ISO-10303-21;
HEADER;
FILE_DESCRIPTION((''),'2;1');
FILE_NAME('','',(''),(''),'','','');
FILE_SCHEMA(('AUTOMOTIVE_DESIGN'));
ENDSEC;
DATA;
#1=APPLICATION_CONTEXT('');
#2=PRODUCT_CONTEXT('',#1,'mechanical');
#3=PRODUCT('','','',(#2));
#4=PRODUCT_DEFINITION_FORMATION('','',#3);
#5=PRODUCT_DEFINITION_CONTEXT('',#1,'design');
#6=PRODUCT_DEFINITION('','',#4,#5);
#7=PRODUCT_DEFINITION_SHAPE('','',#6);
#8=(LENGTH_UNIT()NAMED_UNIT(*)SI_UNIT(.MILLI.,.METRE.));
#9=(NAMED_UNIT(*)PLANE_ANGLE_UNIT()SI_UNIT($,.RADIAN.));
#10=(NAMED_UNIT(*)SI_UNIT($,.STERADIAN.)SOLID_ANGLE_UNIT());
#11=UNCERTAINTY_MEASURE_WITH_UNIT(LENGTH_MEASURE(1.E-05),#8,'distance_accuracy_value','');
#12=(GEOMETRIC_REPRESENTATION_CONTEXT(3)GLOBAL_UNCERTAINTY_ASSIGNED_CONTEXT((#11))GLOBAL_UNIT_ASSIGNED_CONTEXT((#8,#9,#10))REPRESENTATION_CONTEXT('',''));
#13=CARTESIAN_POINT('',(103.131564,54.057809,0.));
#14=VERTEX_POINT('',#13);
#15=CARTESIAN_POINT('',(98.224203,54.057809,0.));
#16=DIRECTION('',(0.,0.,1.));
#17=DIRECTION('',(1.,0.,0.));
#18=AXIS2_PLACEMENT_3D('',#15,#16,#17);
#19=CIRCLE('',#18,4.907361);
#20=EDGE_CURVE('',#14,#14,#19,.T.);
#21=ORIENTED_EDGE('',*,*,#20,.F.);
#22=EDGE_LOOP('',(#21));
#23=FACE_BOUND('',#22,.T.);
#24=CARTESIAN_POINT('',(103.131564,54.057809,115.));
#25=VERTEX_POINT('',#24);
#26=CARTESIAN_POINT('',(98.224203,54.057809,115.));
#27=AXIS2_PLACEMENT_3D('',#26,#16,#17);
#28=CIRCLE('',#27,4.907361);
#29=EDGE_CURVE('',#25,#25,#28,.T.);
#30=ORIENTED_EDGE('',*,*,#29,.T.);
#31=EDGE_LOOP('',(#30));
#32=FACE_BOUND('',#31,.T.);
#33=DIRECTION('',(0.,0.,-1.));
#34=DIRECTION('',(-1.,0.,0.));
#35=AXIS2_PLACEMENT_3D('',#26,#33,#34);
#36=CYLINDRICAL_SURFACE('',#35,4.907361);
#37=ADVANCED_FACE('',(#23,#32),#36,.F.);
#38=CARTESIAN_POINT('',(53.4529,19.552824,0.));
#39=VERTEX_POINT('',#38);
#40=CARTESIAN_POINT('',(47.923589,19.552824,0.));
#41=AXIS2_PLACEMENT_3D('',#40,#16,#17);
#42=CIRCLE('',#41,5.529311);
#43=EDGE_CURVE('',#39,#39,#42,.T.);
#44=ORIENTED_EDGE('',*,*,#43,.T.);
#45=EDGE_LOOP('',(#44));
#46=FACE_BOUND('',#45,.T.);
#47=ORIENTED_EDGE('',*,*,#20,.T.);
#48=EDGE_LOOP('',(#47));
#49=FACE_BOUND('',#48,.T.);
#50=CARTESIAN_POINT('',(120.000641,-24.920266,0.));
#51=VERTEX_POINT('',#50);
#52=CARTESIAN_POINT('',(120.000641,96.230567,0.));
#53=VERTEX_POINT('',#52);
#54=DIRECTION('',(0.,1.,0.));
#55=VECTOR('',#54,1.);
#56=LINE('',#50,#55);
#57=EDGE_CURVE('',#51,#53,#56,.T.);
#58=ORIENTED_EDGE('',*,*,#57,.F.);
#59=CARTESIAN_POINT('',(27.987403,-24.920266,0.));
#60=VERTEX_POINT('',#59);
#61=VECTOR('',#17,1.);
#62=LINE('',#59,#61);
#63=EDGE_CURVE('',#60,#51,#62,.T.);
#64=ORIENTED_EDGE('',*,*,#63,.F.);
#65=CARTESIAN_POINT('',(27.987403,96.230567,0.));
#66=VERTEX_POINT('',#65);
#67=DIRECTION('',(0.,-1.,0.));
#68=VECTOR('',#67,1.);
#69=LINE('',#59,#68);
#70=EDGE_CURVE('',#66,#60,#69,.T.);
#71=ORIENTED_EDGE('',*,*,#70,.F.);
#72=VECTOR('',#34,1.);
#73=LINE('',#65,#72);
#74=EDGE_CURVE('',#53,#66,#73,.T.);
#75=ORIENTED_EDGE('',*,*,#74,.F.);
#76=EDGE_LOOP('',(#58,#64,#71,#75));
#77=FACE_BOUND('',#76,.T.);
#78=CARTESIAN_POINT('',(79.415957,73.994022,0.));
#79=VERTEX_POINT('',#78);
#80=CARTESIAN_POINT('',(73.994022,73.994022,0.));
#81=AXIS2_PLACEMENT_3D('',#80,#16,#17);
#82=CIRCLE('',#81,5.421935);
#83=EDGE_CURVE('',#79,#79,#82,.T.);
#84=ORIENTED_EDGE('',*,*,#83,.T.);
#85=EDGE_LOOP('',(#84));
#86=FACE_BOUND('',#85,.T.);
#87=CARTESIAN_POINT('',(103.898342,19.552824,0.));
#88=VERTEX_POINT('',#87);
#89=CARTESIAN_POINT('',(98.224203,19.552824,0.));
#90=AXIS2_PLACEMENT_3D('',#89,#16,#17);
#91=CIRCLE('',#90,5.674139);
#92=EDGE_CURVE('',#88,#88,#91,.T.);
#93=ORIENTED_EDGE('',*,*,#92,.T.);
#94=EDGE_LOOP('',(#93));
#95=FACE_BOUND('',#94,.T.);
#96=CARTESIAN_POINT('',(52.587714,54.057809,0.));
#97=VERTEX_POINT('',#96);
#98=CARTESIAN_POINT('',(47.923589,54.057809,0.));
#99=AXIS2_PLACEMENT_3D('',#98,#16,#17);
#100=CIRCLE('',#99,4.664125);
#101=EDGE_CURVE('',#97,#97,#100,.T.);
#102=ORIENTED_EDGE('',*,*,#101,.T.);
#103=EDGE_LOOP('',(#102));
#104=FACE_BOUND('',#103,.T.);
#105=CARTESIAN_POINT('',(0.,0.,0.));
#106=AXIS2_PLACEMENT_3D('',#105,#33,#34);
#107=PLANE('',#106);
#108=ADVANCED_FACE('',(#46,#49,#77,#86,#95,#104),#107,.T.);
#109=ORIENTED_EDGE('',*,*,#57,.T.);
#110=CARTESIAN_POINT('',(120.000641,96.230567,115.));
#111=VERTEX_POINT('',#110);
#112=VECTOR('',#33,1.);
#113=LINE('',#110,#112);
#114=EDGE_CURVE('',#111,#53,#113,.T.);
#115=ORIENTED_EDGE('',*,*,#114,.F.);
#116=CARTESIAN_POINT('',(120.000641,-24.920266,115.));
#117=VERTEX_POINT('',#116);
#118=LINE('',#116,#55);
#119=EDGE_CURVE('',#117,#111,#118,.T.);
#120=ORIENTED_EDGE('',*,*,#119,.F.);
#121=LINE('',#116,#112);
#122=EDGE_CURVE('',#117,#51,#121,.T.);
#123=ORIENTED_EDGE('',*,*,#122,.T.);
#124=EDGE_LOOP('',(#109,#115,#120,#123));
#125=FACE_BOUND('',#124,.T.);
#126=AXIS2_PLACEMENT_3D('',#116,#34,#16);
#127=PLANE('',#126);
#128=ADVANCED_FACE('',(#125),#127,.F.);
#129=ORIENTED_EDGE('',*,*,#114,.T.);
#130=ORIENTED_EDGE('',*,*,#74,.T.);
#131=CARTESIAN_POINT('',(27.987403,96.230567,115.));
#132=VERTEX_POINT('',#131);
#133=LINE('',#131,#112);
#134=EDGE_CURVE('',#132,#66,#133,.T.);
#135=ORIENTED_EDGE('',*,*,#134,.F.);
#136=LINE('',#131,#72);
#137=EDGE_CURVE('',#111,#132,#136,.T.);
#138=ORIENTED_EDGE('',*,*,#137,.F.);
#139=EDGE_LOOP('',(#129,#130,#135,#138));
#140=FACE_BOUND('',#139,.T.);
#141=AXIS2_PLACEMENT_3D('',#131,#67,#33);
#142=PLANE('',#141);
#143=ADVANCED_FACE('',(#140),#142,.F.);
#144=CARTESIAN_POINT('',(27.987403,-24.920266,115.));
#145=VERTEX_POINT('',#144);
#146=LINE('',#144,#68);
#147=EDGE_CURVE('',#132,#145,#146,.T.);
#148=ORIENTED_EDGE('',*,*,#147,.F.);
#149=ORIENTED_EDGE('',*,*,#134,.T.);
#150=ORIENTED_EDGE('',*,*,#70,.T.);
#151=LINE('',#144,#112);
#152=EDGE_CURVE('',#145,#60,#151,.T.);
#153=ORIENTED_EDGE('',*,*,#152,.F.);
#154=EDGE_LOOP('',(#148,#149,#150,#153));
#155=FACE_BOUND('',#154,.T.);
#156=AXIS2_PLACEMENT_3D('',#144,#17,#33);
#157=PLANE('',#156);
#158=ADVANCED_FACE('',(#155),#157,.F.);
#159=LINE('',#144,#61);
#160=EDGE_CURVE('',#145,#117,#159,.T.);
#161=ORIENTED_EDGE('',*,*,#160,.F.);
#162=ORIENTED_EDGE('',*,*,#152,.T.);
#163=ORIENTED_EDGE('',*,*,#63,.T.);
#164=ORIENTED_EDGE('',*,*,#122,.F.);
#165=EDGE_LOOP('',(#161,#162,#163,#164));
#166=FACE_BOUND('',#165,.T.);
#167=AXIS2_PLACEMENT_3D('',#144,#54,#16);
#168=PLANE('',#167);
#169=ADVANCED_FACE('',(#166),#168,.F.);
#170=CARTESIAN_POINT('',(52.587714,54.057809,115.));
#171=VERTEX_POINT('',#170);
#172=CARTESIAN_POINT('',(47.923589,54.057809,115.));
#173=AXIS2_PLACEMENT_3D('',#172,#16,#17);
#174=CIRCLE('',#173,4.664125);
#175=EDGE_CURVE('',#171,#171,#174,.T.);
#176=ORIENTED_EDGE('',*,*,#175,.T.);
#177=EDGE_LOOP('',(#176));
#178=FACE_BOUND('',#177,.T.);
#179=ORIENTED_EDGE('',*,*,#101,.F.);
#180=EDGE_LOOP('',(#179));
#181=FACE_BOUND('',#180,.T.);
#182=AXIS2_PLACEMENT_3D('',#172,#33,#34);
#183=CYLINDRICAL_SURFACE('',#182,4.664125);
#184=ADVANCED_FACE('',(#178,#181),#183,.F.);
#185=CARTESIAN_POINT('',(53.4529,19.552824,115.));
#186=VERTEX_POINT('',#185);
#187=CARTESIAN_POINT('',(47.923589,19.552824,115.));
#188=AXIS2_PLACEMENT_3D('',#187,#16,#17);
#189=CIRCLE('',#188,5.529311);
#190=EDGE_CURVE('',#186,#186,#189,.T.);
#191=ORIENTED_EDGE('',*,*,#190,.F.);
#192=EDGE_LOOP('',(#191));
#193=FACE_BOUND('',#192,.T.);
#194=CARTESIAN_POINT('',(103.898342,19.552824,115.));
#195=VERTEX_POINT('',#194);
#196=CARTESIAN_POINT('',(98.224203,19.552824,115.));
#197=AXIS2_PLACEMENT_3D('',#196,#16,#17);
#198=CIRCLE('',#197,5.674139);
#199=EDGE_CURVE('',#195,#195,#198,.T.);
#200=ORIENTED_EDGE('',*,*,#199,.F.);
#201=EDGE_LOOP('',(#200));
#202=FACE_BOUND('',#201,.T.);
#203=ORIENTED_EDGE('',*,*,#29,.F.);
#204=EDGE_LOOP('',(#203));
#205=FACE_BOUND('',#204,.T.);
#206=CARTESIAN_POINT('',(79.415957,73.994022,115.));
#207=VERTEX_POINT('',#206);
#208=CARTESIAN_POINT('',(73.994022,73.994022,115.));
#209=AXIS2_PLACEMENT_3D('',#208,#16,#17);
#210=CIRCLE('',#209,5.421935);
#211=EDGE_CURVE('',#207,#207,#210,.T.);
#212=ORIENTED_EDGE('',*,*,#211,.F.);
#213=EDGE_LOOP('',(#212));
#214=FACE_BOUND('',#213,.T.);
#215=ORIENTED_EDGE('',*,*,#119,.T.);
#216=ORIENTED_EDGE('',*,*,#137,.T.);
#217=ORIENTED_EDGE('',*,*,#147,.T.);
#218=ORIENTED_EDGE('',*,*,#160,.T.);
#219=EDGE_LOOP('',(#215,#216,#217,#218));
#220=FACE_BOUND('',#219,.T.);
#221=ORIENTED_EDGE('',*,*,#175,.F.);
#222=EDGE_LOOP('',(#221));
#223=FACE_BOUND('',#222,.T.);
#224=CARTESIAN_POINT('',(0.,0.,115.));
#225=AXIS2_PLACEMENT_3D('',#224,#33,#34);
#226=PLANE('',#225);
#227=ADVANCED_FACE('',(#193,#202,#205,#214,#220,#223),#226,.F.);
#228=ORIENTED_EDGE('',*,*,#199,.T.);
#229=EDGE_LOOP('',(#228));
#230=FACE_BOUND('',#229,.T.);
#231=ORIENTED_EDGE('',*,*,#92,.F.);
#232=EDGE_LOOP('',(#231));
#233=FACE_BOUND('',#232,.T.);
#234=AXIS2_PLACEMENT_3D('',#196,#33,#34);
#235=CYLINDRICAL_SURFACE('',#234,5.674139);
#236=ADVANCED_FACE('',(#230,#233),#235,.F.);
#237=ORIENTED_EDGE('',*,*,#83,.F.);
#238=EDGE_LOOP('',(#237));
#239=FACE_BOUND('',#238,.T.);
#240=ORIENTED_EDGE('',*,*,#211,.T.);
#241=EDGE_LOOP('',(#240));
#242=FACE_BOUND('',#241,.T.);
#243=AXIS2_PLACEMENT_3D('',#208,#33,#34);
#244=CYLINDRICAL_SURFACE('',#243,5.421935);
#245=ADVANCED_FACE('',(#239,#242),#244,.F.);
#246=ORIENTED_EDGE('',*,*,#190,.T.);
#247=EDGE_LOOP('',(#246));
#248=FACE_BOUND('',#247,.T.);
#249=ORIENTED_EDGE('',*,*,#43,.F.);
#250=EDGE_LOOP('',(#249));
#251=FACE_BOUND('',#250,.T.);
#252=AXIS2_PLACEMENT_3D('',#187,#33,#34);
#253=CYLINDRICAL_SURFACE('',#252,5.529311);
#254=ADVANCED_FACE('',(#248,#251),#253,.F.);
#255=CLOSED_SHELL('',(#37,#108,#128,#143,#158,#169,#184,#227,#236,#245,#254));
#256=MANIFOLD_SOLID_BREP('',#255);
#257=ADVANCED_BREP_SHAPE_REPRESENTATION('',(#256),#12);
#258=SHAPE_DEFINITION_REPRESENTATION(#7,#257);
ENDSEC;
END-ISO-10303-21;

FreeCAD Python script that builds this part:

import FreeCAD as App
import Part
import Sketcher
from FreeCAD import Vector

doc = App.newDocument("Part")
body = doc.addObject("PartDesign::Body", "Body")

# Sketch on XY plane
sketch1 = body.newObject("Sketcher::SketchObject", "Sketch")
sketch1.AttachmentSupport = (doc.getObject("XY_Plane"), [""])
sketch1.MapMode = "FlatFace"
sketch1.addGeometry([
    Part.LineSegment(Vector(28, 96.2, 0), Vector(28, -24.9, 0)),  # 0
    Part.LineSegment(Vector(28, -24.9, 0), Vector(120, -24.9, 0)),  # 1
    Part.LineSegment(Vector(120, -24.9, 0), Vector(120, 96.2, 0)),  # 2
    Part.LineSegment(Vector(120, 96.2, 0), Vector(28, 96.2, 0)),  # 3
    Part.Circle(Vector(47.9, 19.6, 0), Vector(0, 0, 1), 5.5),  # 4
    Part.Circle(Vector(98.2, 19.6, 0), Vector(0, 0, 1), 5.7),  # 5
    Part.Circle(Vector(47.9, 54.1, 0), Vector(0, 0, 1), 4.7),  # 6
    Part.Circle(Vector(98.2, 54.1, 0), Vector(0, 0, 1), 4.9),  # 7
    Part.Circle(Vector(74, 74, 0), Vector(0, 0, 1), 5.4),  # 8
], False)
sketch1.addConstraint([
    Sketcher.Constraint("Coincident", 0, 2, 1, 1),
    Sketcher.Constraint("Coincident", 1, 2, 2, 1),
    Sketcher.Constraint("Coincident", 2, 2, 3, 1),
    Sketcher.Constraint("Coincident", 3, 2, 0, 1),
    Sketcher.Constraint("Vertical", 0),
    Sketcher.Constraint("Horizontal", 1),
    Sketcher.Constraint("Vertical", 2),
    Sketcher.Constraint("Horizontal", 3),
    Sketcher.Constraint("Horizontal", 4, 3, 5, 3),
    Sketcher.Constraint("Horizontal", 6, 3, 7, 3),
    Sketcher.Constraint("Vertical", 4, 3, 6, 3),
    Sketcher.Constraint("Vertical", 5, 3, 7, 3),
    Sketcher.Constraint("Diameter", 4, 11.058621),
    Sketcher.Constraint("Diameter", 6, 9.32825),
    Sketcher.Constraint("Diameter", 8, 10.84387),
    Sketcher.Constraint("Diameter", 5, 11.348277),
    Sketcher.Constraint("Diameter", 7, 9.814722),
    Sketcher.Constraint("DistanceX", 0, 2, 5, 3, 70.2368),
    Sketcher.Constraint("DistanceX", 1, 1, 1, 2, 92.013237),
    Sketcher.Constraint("DistanceY", 0, 2, 0, 1, 121.150834),
    Sketcher.Constraint("DistanceX", -1, 1, 4, 3, 47.923589),
    Sketcher.Constraint("DistanceY", -1, 1, 6, 3, 54.057809),
    Sketcher.Constraint("DistanceX", -1, 1, 8, 3, 73.994022),
    Sketcher.Constraint("DistanceY", -1, 1, 8, 3, 73.994022),
    Sketcher.Constraint("DistanceX", -1, 1, 1, 2, 120.000641),
    Sketcher.Constraint("DistanceY", 0, 2, 4, 3, 44.473091),
    Sketcher.Constraint("DistanceY", 0, 2, 8, 3, 98.914288),
])
pad1 = body.newObject("PartDesign::Pad", "Pad")
pad1.Profile = sketch1
pad1.Length = 115

doc.recompute()
